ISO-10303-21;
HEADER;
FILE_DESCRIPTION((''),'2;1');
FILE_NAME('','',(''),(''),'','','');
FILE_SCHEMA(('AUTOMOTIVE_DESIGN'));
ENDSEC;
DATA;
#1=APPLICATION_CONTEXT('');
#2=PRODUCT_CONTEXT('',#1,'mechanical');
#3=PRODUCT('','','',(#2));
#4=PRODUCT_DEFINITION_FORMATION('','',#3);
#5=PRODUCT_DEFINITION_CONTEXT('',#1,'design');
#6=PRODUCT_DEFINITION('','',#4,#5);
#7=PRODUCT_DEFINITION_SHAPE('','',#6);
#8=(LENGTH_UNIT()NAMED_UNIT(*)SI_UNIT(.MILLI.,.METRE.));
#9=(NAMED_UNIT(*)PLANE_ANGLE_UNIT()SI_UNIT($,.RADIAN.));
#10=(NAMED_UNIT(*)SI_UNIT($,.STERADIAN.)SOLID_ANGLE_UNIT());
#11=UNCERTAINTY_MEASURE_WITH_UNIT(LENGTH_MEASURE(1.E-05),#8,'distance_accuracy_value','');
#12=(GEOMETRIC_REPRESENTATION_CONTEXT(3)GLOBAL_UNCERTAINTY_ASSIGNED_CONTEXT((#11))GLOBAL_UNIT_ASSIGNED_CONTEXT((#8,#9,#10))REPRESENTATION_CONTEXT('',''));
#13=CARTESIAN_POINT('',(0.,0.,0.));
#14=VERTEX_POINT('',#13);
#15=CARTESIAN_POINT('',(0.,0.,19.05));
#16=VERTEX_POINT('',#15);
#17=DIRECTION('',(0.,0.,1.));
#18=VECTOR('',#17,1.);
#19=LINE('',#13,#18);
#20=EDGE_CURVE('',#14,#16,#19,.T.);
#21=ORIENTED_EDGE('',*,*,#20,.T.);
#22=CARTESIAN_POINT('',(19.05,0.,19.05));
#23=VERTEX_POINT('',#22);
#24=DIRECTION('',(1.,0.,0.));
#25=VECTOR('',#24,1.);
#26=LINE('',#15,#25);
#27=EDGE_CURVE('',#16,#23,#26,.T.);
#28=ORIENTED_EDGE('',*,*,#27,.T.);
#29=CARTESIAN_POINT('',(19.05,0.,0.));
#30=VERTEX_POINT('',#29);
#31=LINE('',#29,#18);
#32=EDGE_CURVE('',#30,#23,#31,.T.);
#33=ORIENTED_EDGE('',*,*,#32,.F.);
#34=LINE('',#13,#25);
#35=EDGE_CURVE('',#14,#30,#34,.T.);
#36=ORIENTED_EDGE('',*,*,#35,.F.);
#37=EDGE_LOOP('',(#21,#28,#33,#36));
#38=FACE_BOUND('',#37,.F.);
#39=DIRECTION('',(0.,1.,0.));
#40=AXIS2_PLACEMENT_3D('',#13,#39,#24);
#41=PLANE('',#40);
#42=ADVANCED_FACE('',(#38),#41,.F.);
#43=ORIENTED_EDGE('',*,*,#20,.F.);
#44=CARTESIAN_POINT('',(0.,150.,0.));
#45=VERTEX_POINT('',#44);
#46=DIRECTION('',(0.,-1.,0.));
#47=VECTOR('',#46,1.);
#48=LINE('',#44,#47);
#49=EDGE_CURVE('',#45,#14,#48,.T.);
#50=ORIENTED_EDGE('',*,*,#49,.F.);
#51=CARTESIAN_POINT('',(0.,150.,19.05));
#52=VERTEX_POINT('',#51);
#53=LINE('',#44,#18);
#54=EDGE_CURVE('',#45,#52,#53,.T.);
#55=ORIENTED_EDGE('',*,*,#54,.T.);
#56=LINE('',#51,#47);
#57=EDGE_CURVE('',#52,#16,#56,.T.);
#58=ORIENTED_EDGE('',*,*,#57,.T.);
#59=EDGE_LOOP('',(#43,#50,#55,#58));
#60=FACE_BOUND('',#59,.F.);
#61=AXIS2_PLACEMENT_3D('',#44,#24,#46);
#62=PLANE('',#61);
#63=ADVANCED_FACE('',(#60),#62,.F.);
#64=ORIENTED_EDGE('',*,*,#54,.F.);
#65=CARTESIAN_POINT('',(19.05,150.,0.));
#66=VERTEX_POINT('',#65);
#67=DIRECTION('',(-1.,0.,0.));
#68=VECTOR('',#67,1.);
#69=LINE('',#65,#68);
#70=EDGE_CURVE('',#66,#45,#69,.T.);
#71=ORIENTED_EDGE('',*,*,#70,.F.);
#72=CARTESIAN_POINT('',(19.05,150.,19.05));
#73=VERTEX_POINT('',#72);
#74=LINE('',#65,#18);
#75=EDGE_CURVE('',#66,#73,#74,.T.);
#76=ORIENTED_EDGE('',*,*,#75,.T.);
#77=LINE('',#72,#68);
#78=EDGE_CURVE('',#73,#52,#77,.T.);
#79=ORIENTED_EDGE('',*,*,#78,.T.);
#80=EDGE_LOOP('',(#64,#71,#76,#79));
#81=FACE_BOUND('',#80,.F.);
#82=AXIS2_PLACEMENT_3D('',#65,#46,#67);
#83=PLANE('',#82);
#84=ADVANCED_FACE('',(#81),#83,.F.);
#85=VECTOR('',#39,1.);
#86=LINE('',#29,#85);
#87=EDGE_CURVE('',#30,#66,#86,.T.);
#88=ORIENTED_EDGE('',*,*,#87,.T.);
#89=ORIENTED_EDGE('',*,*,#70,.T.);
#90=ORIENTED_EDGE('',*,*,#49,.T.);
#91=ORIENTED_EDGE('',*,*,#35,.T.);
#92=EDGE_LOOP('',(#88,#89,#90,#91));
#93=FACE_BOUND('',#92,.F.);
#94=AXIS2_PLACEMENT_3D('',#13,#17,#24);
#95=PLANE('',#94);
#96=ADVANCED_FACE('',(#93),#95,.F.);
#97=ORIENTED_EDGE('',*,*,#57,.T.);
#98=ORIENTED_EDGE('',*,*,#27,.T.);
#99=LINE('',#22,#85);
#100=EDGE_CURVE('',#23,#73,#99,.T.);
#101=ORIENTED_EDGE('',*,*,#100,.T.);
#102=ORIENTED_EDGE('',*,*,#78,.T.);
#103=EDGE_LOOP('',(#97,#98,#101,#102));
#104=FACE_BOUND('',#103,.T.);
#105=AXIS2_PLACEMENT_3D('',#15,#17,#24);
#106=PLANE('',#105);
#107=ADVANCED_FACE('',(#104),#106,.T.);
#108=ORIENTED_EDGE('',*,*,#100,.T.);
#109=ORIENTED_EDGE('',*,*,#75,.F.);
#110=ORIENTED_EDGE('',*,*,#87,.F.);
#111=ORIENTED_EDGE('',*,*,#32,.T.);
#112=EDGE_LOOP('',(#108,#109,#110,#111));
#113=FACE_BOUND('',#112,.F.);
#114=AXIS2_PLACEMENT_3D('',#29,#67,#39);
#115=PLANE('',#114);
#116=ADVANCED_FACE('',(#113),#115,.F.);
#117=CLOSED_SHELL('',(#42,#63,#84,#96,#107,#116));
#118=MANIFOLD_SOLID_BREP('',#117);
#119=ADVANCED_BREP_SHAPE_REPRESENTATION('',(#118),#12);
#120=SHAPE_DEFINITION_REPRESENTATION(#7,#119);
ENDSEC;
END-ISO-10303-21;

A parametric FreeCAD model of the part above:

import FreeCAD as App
import Part
import Sketcher
Q = App.Units.Quantity


def add_polygon(sketch, points):
    """Adds a closed chain of lines whose ends are joined by coincident constraints."""
    first, n = sketch.GeometryCount, len(points)
    for a, b in zip(points, points[1:] + points[:1]):
        sketch.addGeometry(Part.LineSegment(App.Vector(*a, 0), App.Vector(*b, 0)), False)
    for i in range(n):
        sketch.addConstraint(Sketcher.Constraint("Coincident", first + i, 2, first + (i + 1) % n, 1))

doc = App.newDocument("Part")
params = doc.addObject("Spreadsheet::Sheet", "Params")
for row, (alias, value) in enumerate([
    ("sketch1_width", "0.75 in"),
    ("pad1_length", "0.75 in"),
], start=1):
    params.set(f"A{row}", alias)
    params.set(f"B{row}", "=" + value)
    params.setAlias(f"B{row}", alias)

body = doc.addObject("PartDesign::Body", "Body")

# Sketch on XY plane
sketch1 = body.newObject("Sketcher::SketchObject", "Sketch")
sketch1.AttachmentSupport = (doc.getObject("XY_Plane"), [""])
sketch1.MapMode = "FlatFace"
add_polygon(sketch1, [(0, 150), (0, 0), (19.05, 0), (19.05, 150)])  # lines 0-3
sketch1.addConstraint(Sketcher.Constraint("Vertical", 0))
sketch1.addConstraint(Sketcher.Constraint("Horizontal", 1))
sketch1.addConstraint(Sketcher.Constraint("Vertical", 2))
sketch1.addConstraint(Sketcher.Constraint("Horizontal", 3))
sketch1.addConstraint(Sketcher.Constraint("Coincident", 0, 2, -1, 1))
sketch1.addConstraint(Sketcher.Constraint("DistanceX", 1, 1, 1, 2, Q("0.75 in")))
sketch1.addConstraint(Sketcher.Constraint("DistanceY", 0, 2, 0, 1, Q("5.9055 in")))
sketch1.setExpression("Constraints[9]", "Params.sketch1_width")
pad1 = body.newObject("PartDesign::Pad", "Pad")
pad1.Profile = sketch1
pad1.setExpression("Length", "Params.pad1_length")

doc.recompute()
